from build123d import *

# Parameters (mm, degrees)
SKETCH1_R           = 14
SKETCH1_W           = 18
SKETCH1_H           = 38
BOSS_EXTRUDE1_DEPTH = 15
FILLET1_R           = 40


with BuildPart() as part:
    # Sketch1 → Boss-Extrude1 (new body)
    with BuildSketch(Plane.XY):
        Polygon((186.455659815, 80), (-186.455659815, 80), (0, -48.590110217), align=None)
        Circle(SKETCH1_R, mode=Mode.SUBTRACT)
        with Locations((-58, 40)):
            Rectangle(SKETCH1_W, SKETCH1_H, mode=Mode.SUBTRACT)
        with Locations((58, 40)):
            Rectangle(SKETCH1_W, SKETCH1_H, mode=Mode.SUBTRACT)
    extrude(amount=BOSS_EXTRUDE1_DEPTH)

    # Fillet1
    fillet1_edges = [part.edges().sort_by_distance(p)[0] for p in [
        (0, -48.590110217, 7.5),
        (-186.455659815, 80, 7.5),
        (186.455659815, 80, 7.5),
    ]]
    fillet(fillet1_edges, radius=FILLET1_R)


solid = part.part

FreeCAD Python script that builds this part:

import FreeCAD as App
import Part
import Sketcher

V = App.Vector


def edges_at(feature, points):
    """Names of the edges that pass closest to the given points."""
    edges = feature.Shape.Edges
    near = lambda p: min(range(len(edges)), key=lambda i: edges[i].distToShape(Part.Vertex(*p))[0])
    return sorted({f"Edge{near(p) + 1}" for p in points})

doc = App.newDocument("Part")
body = doc.addObject("PartDesign::Body", "Body")

sketch1 = doc.addObject("Sketcher::SketchObject", "Sketch")
body.addObject(sketch1)
sketch1.AttachmentSupport = (doc.XY_Plane, [""])
sketch1.MapMode = "FlatFace"
sketch1.addGeometry(Part.LineSegment(V(186.45566, 80, 0), V(-186.45566, 80, 0)), False)
sketch1.addGeometry(Part.LineSegment(V(-186.45566, 80, 0), V(0, -48.59011, 0)), False)
sketch1.addGeometry(Part.LineSegment(V(0, -48.59011, 0), V(186.45566, 80, 0)), False)
sketch1.addGeometry(Part.Circle(V(0, 0, 0), V(0, 0, 1), 14), False)
sketch1.addGeometry(Part.LineSegment(V(-49, 21, 0), V(-67, 21, 0)), False)
sketch1.addGeometry(Part.LineSegment(V(-67, 21, 0), V(-67, 59, 0)), False)
sketch1.addGeometry(Part.LineSegment(V(-67, 59, 0), V(-49, 59, 0)), False)
sketch1.addGeometry(Part.LineSegment(V(-49, 59, 0), V(-49, 21, 0)), False)
sketch1.addGeometry(Part.LineSegment(V(67, 21, 0), V(49, 21, 0)), False)
sketch1.addGeometry(Part.LineSegment(V(49, 21, 0), V(49, 59, 0)), False)
sketch1.addGeometry(Part.LineSegment(V(49, 59, 0), V(67, 59, 0)), False)
sketch1.addGeometry(Part.LineSegment(V(67, 59, 0), V(67, 21, 0)), False)
sketch1.addConstraint(Sketcher.Constraint("Coincident", 0, 2, 1, 1))
sketch1.addConstraint(Sketcher.Constraint("Coincident", 1, 2, 2, 1))
sketch1.addConstraint(Sketcher.Constraint("Coincident", 2, 2, 0, 1))
sketch1.addConstraint(Sketcher.Constraint("Coincident", 4, 2, 5, 1))
sketch1.addConstraint(Sketcher.Constraint("Coincident", 5, 2, 6, 1))
sketch1.addConstraint(Sketcher.Constraint("Coincident", 6, 2, 7, 1))
sketch1.addConstraint(Sketcher.Constraint("Coincident", 7, 2, 4, 1))
sketch1.addConstraint(Sketcher.Constraint("Coincident", 8, 2, 9, 1))
sketch1.addConstraint(Sketcher.Constraint("Coincident", 9, 2, 10, 1))
sketch1.addConstraint(Sketcher.Constraint("Coincident", 10, 2, 11, 1))
sketch1.addConstraint(Sketcher.Constraint("Coincident", 11, 2, 8, 1))
sketch1.addConstraint(Sketcher.Constraint("Horizontal", 0))
sketch1.addConstraint(Sketcher.Constraint("Horizontal", 4))
sketch1.addConstraint(Sketcher.Constraint("Vertical", 5))
sketch1.addConstraint(Sketcher.Constraint("Horizontal", 6))
sketch1.addConstraint(Sketcher.Constraint("Vertical", 7))
sketch1.addConstraint(Sketcher.Constraint("Horizontal", 8))
sketch1.addConstraint(Sketcher.Constraint("Vertical", 9))
sketch1.addConstraint(Sketcher.Constraint("Horizontal", 10))
sketch1.addConstraint(Sketcher.Constraint("Vertical", 11))
sketch1.addConstraint(Sketcher.Constraint("Coincident", 3, 3, -1, 1))
sketch1.addConstraint(Sketcher.Constraint("Symmetric", 7, 2, 8, 2, -2))
sketch1.addConstraint(Sketcher.Constraint("Symmetric", 5, 2, 10, 2, -2))
sketch1.addConstraint(Sketcher.Constraint("PointOnObject", 1, 2, -2))
sketch1.addConstraint(Sketcher.Constraint("Equal", 1, 2))
sketch1.addConstraint(Sketcher.Constraint("Diameter", 3, 28.0))
sketch1.addConstraint(Sketcher.Constraint("DistanceX", 4, 2, 4, 1, 18.0))
sketch1.addConstraint(Sketcher.Constraint("DistanceY", 5, 1, 5, 2, 38.0))
sketch1.addConstraint(Sketcher.Constraint("DistanceY", -1, 1, 0, 2, 80.0))
sketch1.addConstraint(Sketcher.Constraint("DistanceX", 4, 2, -1, 1, 67.0))
sketch1.addConstraint(Sketcher.Constraint("DistanceY", -1, 1, 4, 2, 21.0))
sketch1.addConstraint(Sketcher.Constraint("DistanceX", 0, 2, 0, 1, 372.91132))
sketch1.addConstraint(Sketcher.Constraint("DistanceY", 1, 2, -1, 1, 48.59011))
pad1 = doc.addObject("PartDesign::Pad", "Pad")
body.addObject(pad1)
pad1.Profile = sketch1
pad1.Length = 15
doc.recompute()

fillet = doc.addObject("PartDesign::Fillet", "Fillet")
body.addObject(fillet)
fillet.Base = (pad1, edges_at(pad1, [(0, -48.59, 7.5), (-186.456, 80, 7.5), (186.456, 80, 7.5)]))
fillet.Radius = 40

doc.recompute()
